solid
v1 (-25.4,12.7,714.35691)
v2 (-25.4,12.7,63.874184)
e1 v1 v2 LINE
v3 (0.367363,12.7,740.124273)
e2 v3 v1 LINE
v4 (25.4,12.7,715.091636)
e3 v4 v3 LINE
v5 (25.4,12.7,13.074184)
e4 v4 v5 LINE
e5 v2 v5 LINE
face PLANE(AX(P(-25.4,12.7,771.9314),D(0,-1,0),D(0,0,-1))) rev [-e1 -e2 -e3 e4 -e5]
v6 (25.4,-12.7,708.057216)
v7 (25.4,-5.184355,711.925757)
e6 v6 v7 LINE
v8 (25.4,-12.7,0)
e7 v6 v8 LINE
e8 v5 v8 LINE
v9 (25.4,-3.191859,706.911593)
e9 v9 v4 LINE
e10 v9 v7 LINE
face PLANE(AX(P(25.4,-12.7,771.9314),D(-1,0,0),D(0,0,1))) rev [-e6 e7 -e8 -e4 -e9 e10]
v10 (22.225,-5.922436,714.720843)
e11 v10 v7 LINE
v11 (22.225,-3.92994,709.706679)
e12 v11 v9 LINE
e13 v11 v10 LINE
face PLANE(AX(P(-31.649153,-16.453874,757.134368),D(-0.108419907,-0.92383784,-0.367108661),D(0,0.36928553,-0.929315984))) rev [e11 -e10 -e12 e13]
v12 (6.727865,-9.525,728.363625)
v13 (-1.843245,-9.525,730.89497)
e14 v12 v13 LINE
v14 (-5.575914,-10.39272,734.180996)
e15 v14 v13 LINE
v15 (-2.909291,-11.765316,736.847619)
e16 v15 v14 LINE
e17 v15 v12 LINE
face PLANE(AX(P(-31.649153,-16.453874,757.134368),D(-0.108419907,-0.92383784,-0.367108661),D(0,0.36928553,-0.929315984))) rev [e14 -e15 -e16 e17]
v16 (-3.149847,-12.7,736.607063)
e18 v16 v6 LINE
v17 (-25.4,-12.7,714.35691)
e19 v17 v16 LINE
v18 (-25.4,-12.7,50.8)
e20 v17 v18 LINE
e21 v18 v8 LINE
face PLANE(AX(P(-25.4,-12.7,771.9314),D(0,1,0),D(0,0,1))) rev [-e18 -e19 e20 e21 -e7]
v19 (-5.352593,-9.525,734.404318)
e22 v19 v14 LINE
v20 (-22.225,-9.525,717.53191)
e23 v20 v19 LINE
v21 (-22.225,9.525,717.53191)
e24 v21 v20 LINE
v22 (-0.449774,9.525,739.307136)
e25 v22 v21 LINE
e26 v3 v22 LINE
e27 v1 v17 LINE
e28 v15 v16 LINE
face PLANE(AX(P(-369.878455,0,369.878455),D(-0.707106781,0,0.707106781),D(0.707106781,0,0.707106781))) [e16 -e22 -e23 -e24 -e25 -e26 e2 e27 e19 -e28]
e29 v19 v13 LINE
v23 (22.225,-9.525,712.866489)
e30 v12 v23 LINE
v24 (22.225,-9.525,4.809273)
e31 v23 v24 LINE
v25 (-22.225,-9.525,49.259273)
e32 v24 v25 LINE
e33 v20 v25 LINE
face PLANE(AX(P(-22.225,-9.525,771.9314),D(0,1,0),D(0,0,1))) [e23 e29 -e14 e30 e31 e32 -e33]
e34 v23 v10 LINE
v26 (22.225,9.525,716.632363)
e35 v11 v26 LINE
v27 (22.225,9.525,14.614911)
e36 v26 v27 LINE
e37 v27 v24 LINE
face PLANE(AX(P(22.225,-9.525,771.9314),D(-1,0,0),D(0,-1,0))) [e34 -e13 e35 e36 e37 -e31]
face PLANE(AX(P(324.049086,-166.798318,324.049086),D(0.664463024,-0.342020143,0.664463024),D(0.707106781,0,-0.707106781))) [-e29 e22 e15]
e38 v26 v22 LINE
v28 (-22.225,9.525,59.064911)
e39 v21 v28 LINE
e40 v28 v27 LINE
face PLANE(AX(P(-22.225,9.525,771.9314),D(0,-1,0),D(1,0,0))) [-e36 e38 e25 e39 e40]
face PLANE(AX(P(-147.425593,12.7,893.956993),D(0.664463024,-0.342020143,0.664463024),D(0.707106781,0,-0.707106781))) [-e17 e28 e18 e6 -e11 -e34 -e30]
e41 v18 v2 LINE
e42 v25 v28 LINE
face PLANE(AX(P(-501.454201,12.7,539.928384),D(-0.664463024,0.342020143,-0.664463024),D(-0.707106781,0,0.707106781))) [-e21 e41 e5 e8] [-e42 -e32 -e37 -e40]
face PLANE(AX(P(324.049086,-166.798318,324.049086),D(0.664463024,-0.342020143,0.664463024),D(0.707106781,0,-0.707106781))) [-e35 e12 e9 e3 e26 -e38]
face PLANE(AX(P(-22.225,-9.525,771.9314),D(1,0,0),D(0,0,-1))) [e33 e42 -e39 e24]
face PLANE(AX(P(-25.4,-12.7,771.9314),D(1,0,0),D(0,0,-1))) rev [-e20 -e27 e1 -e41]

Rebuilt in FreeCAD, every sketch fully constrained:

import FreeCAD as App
import Part
import Sketcher
Q = App.Units.Quantity

doc = App.newDocument("Part")
body = doc.addObject("PartDesign::Body", "Body")

sketch1 = doc.addObject("Sketcher::SketchObject", "Sketch")
body.addObject(sketch1)
sketch1.AttachmentSupport = (doc.XY_Plane, [""])
sketch1.MapMode = "FlatFace"
sketch1.addGeometry(Part.LineSegment(App.Vector(-25, 13, 0), App.Vector(-25, -13, 0)), False)
sketch1.addGeometry(Part.LineSegment(App.Vector(-25, -13, 0), App.Vector(25, -13, 0)), False)
sketch1.addGeometry(Part.LineSegment(App.Vector(25, -13, 0), App.Vector(25, 13, 0)), False)
sketch1.addGeometry(Part.LineSegment(App.Vector(25, 13, 0), App.Vector(-25, 13, 0)), False)
sketch1.addGeometry(Part.LineSegment(App.Vector(22, -10, 0), App.Vector(-22, -10, 0)), False)
sketch1.addGeometry(Part.LineSegment(App.Vector(-22, -10, 0), App.Vector(-22, 10, 0)), False)
sketch1.addGeometry(Part.LineSegment(App.Vector(-22, 10, 0), App.Vector(22, 10, 0)), False)
sketch1.addGeometry(Part.LineSegment(App.Vector(22, 10, 0), App.Vector(22, -10, 0)), False)
sketch1.addConstraint(Sketcher.Constraint("Coincident", 0, 2, 1, 1))
sketch1.addConstraint(Sketcher.Constraint("Coincident", 1, 2, 2, 1))
sketch1.addConstraint(Sketcher.Constraint("Coincident", 2, 2, 3, 1))
sketch1.addConstraint(Sketcher.Constraint("Coincident", 3, 2, 0, 1))
sketch1.addConstraint(Sketcher.Constraint("Coincident", 4, 2, 5, 1))
sketch1.addConstraint(Sketcher.Constraint("Coincident", 5, 2, 6, 1))
sketch1.addConstraint(Sketcher.Constraint("Coincident", 6, 2, 7, 1))
sketch1.addConstraint(Sketcher.Constraint("Coincident", 7, 2, 4, 1))
sketch1.addConstraint(Sketcher.Constraint("Vertical", 0))
sketch1.addConstraint(Sketcher.Constraint("Horizontal", 1))
sketch1.addConstraint(Sketcher.Constraint("Vertical", 2))
sketch1.addConstraint(Sketcher.Constraint("Horizontal", 3))
sketch1.addConstraint(Sketcher.Constraint("Horizontal", 4))
sketch1.addConstraint(Sketcher.Constraint("Vertical", 5))
sketch1.addConstraint(Sketcher.Constraint("Horizontal", 6))
sketch1.addConstraint(Sketcher.Constraint("Vertical", 7))
sketch1.addConstraint(Sketcher.Constraint("Symmetric", 0, 2, 2, 2, -1, 1))
sketch1.addConstraint(Sketcher.Constraint("Symmetric", 4, 2, 6, 2, -1, 1))
sketch1.addConstraint(Sketcher.Constraint("DistanceX", 1, 1, 1, 2, Q("2 in")))
sketch1.addConstraint(Sketcher.Constraint("DistanceY", 0, 2, 0, 1, Q("1 in")))
sketch1.addConstraint(Sketcher.Constraint("DistanceX", 4, 2, 4, 1, Q("1.75 in")))
sketch1.addConstraint(Sketcher.Constraint("DistanceY", 5, 1, 5, 2, Q("0.75 in")))
pad1 = doc.addObject("PartDesign::Pad", "Pad")
body.addObject(pad1)
pad1.Profile = sketch1
pad1.Length = Q("30.391 in")

sketch2 = doc.addObject("Sketcher::SketchObject", "Sketch001")
body.addObject(sketch2)
sketch2.AttachmentSupport = (doc.XZ_Plane, [""])
sketch2.MapMode = "FlatFace"
sketch2.AttachmentOffset = App.Placement(App.Vector(0, 0, -0.5 * 25.4), App.Rotation())
sketch2.addGeometry(Part.LineSegment(App.Vector(-25, 51, 0), App.Vector(25, 0, 0)), False)
sketch2.addGeometry(Part.LineSegment(App.Vector(25, 0, 0), App.Vector(-25, 0, 0)), False)
sketch2.addGeometry(Part.LineSegment(App.Vector(-25, 0, 0), App.Vector(-25, 51, 0)), False)
sketch2.addGeometry(Part.LineSegment(App.Vector(25, 721, 0), App.Vector(-25, 772, 0)), False)
sketch2.addGeometry(Part.LineSegment(App.Vector(-25, 772, 0), App.Vector(25, 772, 0)), False)
sketch2.addGeometry(Part.LineSegment(App.Vector(25, 772, 0), App.Vector(25, 721, 0)), False)
sketch2.addConstraint(Sketcher.Constraint("Coincident", 0, 2, 1, 1))
sketch2.addConstraint(Sketcher.Constraint("Coincident", 1, 2, 2, 1))
sketch2.addConstraint(Sketcher.Constraint("Coincident", 2, 2, 0, 1))
sketch2.addConstraint(Sketcher.Constraint("Coincident", 3, 2, 4, 1))
sketch2.addConstraint(Sketcher.Constraint("Coincident", 4, 2, 5, 1))
sketch2.addConstraint(Sketcher.Constraint("Coincident", 5, 2, 3, 1))
sketch2.addConstraint(Sketcher.Constraint("Horizontal", 1))
sketch2.addConstraint(Sketcher.Constraint("Vertical", 2))
sketch2.addConstraint(Sketcher.Constraint("Horizontal", 4))
sketch2.addConstraint(Sketcher.Constraint("Vertical", 5))
sketch2.addConstraint(Sketcher.Constraint("Symmetric", 0, 2, 1, 2, -1, 1))
sketch2.addConstraint(Sketcher.Constraint("Parallel", 0, 3))
sketch2.addConstraint(Sketcher.Constraint("Vertical", 2, 2, 3, 2))
sketch2.addConstraint(Sketcher.Constraint("Vertical", 0, 2, 4, 2))
sketch2.addConstraint(Sketcher.Constraint("Equal", 4, 2))
sketch2.addConstraint(Sketcher.Constraint("DistanceX", 1, 2, 1, 1, Q("2 in")))
sketch2.addConstraint(Sketcher.Constraint("DistanceY", -1, 1, 3, 2, Q("30.391 in")))
pocket1 = doc.addObject("PartDesign::Pocket", "Pocket")
body.addObject(pocket1)
pocket1.Profile = sketch2
pocket1.Type = "ThroughAll"
pocket1.Reversed = True

sketch3 = doc.addObject("Sketcher::SketchObject", "Sketch002")
body.addObject(sketch3)
sketch3.Placement = App.Placement(App.Vector(12.7, 0, -12.7), App.Rotation(App.Vector(0, 1, 0), App.Vector(-0.707106781, 0, -0.707106781), App.Vector(-0.707106781, 0, 0.707106781), "ZXY"))
sketch3.addGeometry(Part.LineSegment(App.Vector(13, -27, 0), App.Vector(13, -18, 0)), False)
sketch3.addGeometry(Part.LineSegment(App.Vector(13, -18, 0), App.Vector(-13, -18, 0)), False)
sketch3.addGeometry(Part.LineSegment(App.Vector(-13, -18, 0), App.Vector(13, -27, 0)), False)
sketch3.addGeometry(Part.LineSegment(App.Vector(13, -528, 0), App.Vector(-13, -519, 0)), False)
sketch3.addGeometry(Part.LineSegment(App.Vector(-13, -519, 0), App.Vector(-13, -528, 0)), False)
sketch3.addGeometry(Part.LineSegment(App.Vector(-13, -528, 0), App.Vector(13, -528, 0)), False)
sketch3.addConstraint(Sketcher.Constraint("Coincident", 0, 2, 1, 1))
sketch3.addConstraint(Sketcher.Constraint("Coincident", 1, 2, 2, 1))
sketch3.addConstraint(Sketcher.Constraint("Coincident", 2, 2, 0, 1))
sketch3.addConstraint(Sketcher.Constraint("Coincident", 3, 2, 4, 1))
sketch3.addConstraint(Sketcher.Constraint("Coincident", 4, 2, 5, 1))
sketch3.addConstraint(Sketcher.Constraint("Coincident", 5, 2, 3, 1))
sketch3.addConstraint(Sketcher.Constraint("Vertical", 0))
sketch3.addConstraint(Sketcher.Constraint("Horizontal", 1))
sketch3.addConstraint(Sketcher.Constraint("Vertical", 4))
sketch3.addConstraint(Sketcher.Constraint("Horizontal", 5))
sketch3.addConstraint(Sketcher.Constraint("Parallel", 2, 3))
sketch3.addConstraint(Sketcher.Constraint("Vertical", 1, 2, 3, 2))
sketch3.addConstraint(Sketcher.Constraint("Vertical", 2, 2, 5, 2))
sketch3.addConstraint(Sketcher.Constraint("DistanceX", 1, 2, 1, 1, Q("1 in")))
sketch3.addConstraint(Sketcher.Constraint("Angle", 2, Q("-20 deg")))
sketch3.addConstraint(Sketcher.Constraint("DistanceX", -1, 1, 0, 2, Q("0.5 in")))
sketch3.addConstraint(Sketcher.Constraint("DistanceY", 3, 2, -1, 1, 518.632571))
sketch3.addConstraint(Sketcher.Constraint("DistanceY", 3, 2, 1, 2, 500.672059))
pocket2 = doc.addObject("PartDesign::Pocket", "Pocket001")
body.addObject(pocket2)
pocket2.Profile = sketch3
pocket2.Length = Q("29.698 in")
pocket2.Reversed = True

sketch4 = doc.addObject("Sketcher::SketchObject", "Sketch003")
body.addObject(sketch4)
sketch4.Placement = App.Placement(App.Vector(326.715709, -168.170913, 326.715709), App.Rotation(App.Vector(0.573648234, -0.336432319, -0.746820593), App.Vector(0.478974522, 0.87740271, -0.027347585), App.Vector(0.664463024, -0.342020143, 0.664463024), "ZXY"))
sketch4.addGeometry(Part.LineSegment(App.Vector(-493, 41, 0), App.Vector(-595, -22, 0)), False)
sketch4.addGeometry(Part.LineSegment(App.Vector(-595, -22, 0), App.Vector(-578, -50, 0)), False)
sketch4.addGeometry(Part.LineSegment(App.Vector(-578, -50, 0), App.Vector(-476, 13, 0)), False)
sketch4.addGeometry(Part.LineSegment(App.Vector(-476, 13, 0), App.Vector(-493, 41, 0)), False)
sketch4.addConstraint(Sketcher.Constraint("Coincident", 0, 2, 1, 1))
sketch4.addConstraint(Sketcher.Constraint("Coincident", 1, 2, 2, 1))
sketch4.addConstraint(Sketcher.Constraint("Coincident", 2, 2, 3, 1))
sketch4.addConstraint(Sketcher.Constraint("Coincident", 3, 2, 0, 1))
sketch4.addConstraint(Sketcher.Constraint("Perpendicular", 0, 1))
sketch4.addConstraint(Sketcher.Constraint("Perpendicular", 1, 2))
sketch4.addConstraint(Sketcher.Constraint("Perpendicular", 2, 3))
sketch4.addConstraint(Sketcher.Constraint("DistanceX", 0, 2, -1, 1, 595.337622))
sketch4.addConstraint(Sketcher.Constraint("DistanceY", 1, 2, -1, 1, 50.301608))
sketch4.addConstraint(Sketcher.Constraint("DistanceX", 0, 2, 1, 2, 17.274218))
sketch4.addConstraint(Sketcher.Constraint("DistanceY", 1, 2, 0, 2, 28.16821))
sketch4.addConstraint(Sketcher.Constraint("Distance", 0, 120.202865))
pocket3 = doc.addObject("PartDesign::Pocket", "Pocket002")
body.addObject(pocket3)
pocket3.Profile = sketch4
pocket3.Length = Q("0.158 in")

sketch5 = doc.addObject("Sketcher::SketchObject", "Sketch004")
body.addObject(sketch5)
sketch5.AttachmentSupport = (doc.XZ_Plane, [""])
sketch5.MapMode = "FlatFace"
sketch5.addGeometry(Part.LineSegment(App.Vector(-25, 745, 0), App.Vector(-25, 766, 0)), False)
sketch5.addGeometry(Part.LineSegment(App.Vector(-25, 766, 0), App.Vector(25, 766, 0)), False)
sketch5.addGeometry(Part.LineSegment(App.Vector(25, 766, 0), App.Vector(25, 745, 0)), False)
sketch5.addGeometry(Part.LineSegment(App.Vector(25, 745, 0), App.Vector(-25, 745, 0)), False)
sketch5.addConstraint(Sketcher.Constraint("Coincident", 0, 2, 1, 1))
sketch5.addConstraint(Sketcher.Constraint("Coincident", 1, 2, 2, 1))
sketch5.addConstraint(Sketcher.Constraint("Coincident", 2, 2, 3, 1))
sketch5.addConstraint(Sketcher.Constraint("Coincident", 3, 2, 0, 1))
sketch5.addConstraint(Sketcher.Constraint("Vertical", 0))
sketch5.addConstraint(Sketcher.Constraint("Horizontal", 1))
sketch5.addConstraint(Sketcher.Constraint("Vertical", 2))
sketch5.addConstraint(Sketcher.Constraint("Horizontal", 3))
sketch5.addConstraint(Sketcher.Constraint("DistanceX", 1, 1, 1, 2, Q("2 in")))
sketch5.addConstraint(Sketcher.Constraint("DistanceX", 0, 2, -1, 1, Q("1 in")))
sketch5.addConstraint(Sketcher.Constraint("DistanceY", 0, 1, 0, 2, Q("0.828 in")))
sketch5.addConstraint(Sketcher.Constraint("DistanceY", -1, 1, 0, 2, 765.891636))
pocket4 = doc.addObject("PartDesign::Pocket", "Pocket003")
body.addObject(pocket4)
pocket4.Profile = sketch5
pocket4.Length = Q("1.328 in")
pocket4.Midplane = True

sketch6 = doc.addObject("Sketcher::SketchObject", "Sketch005")
body.addObject(sketch6)
sketch6.Placement = App.Placement(App.Vector(-369.878455, 0, 369.878455), App.Rotation(App.Vector(-0.707106781, 0, -0.707106781), App.Vector(0, 0.999999999, 0), App.Vector(0.707106781, 0, -0.707106781), "ZXY"))
sketch6.addGeometry(Part.LineSegment(App.Vector(-527, 89, 0), App.Vector(-527, -41, 0)), False)
sketch6.addGeometry(Part.LineSegment(App.Vector(-527, -41, 0), App.Vector(-449, -41, 0)), False)
sketch6.addGeometry(Part.LineSegment(App.Vector(-449, -41, 0), App.Vector(-449, 89, 0)), False)
sketch6.addGeometry(Part.LineSegment(App.Vector(-449, 89, 0), App.Vector(-527, 89, 0)), False)
sketch6.addConstraint(Sketcher.Constraint("Coincident", 0, 2, 1, 1))
sketch6.addConstraint(Sketcher.Constraint("Coincident", 1, 2, 2, 1))
sketch6.addConstraint(Sketcher.Constraint("Coincident", 2, 2, 3, 1))
sketch6.addConstraint(Sketcher.Constraint("Coincident", 3, 2, 0, 1))
sketch6.addConstraint(Sketcher.Constraint("Vertical", 0))
sketch6.addConstraint(Sketcher.Constraint("Horizontal", 1))
sketch6.addConstraint(Sketcher.Constraint("Vertical", 2))
sketch6.addConstraint(Sketcher.Constraint("Horizontal", 3))
sketch6.addConstraint(Sketcher.Constraint("DistanceX", 1, 1, 1, 2, 77.733568))
sketch6.addConstraint(Sketcher.Constraint("DistanceY", 0, 2, 0, 1, 129.906903))
sketch6.addConstraint(Sketcher.Constraint("DistanceY", 0, 2, -1, 1, 41.277458))
sketch6.addConstraint(Sketcher.Constraint("DistanceX", 0, 2, -1, 1, 526.997363))
pocket5 = doc.addObject("PartDesign::Pocket", "Pocket004")
body.addObject(pocket5)
pocket5.Profile = sketch6
pocket5.Length = Q("1.6 in")

doc.recompute()
